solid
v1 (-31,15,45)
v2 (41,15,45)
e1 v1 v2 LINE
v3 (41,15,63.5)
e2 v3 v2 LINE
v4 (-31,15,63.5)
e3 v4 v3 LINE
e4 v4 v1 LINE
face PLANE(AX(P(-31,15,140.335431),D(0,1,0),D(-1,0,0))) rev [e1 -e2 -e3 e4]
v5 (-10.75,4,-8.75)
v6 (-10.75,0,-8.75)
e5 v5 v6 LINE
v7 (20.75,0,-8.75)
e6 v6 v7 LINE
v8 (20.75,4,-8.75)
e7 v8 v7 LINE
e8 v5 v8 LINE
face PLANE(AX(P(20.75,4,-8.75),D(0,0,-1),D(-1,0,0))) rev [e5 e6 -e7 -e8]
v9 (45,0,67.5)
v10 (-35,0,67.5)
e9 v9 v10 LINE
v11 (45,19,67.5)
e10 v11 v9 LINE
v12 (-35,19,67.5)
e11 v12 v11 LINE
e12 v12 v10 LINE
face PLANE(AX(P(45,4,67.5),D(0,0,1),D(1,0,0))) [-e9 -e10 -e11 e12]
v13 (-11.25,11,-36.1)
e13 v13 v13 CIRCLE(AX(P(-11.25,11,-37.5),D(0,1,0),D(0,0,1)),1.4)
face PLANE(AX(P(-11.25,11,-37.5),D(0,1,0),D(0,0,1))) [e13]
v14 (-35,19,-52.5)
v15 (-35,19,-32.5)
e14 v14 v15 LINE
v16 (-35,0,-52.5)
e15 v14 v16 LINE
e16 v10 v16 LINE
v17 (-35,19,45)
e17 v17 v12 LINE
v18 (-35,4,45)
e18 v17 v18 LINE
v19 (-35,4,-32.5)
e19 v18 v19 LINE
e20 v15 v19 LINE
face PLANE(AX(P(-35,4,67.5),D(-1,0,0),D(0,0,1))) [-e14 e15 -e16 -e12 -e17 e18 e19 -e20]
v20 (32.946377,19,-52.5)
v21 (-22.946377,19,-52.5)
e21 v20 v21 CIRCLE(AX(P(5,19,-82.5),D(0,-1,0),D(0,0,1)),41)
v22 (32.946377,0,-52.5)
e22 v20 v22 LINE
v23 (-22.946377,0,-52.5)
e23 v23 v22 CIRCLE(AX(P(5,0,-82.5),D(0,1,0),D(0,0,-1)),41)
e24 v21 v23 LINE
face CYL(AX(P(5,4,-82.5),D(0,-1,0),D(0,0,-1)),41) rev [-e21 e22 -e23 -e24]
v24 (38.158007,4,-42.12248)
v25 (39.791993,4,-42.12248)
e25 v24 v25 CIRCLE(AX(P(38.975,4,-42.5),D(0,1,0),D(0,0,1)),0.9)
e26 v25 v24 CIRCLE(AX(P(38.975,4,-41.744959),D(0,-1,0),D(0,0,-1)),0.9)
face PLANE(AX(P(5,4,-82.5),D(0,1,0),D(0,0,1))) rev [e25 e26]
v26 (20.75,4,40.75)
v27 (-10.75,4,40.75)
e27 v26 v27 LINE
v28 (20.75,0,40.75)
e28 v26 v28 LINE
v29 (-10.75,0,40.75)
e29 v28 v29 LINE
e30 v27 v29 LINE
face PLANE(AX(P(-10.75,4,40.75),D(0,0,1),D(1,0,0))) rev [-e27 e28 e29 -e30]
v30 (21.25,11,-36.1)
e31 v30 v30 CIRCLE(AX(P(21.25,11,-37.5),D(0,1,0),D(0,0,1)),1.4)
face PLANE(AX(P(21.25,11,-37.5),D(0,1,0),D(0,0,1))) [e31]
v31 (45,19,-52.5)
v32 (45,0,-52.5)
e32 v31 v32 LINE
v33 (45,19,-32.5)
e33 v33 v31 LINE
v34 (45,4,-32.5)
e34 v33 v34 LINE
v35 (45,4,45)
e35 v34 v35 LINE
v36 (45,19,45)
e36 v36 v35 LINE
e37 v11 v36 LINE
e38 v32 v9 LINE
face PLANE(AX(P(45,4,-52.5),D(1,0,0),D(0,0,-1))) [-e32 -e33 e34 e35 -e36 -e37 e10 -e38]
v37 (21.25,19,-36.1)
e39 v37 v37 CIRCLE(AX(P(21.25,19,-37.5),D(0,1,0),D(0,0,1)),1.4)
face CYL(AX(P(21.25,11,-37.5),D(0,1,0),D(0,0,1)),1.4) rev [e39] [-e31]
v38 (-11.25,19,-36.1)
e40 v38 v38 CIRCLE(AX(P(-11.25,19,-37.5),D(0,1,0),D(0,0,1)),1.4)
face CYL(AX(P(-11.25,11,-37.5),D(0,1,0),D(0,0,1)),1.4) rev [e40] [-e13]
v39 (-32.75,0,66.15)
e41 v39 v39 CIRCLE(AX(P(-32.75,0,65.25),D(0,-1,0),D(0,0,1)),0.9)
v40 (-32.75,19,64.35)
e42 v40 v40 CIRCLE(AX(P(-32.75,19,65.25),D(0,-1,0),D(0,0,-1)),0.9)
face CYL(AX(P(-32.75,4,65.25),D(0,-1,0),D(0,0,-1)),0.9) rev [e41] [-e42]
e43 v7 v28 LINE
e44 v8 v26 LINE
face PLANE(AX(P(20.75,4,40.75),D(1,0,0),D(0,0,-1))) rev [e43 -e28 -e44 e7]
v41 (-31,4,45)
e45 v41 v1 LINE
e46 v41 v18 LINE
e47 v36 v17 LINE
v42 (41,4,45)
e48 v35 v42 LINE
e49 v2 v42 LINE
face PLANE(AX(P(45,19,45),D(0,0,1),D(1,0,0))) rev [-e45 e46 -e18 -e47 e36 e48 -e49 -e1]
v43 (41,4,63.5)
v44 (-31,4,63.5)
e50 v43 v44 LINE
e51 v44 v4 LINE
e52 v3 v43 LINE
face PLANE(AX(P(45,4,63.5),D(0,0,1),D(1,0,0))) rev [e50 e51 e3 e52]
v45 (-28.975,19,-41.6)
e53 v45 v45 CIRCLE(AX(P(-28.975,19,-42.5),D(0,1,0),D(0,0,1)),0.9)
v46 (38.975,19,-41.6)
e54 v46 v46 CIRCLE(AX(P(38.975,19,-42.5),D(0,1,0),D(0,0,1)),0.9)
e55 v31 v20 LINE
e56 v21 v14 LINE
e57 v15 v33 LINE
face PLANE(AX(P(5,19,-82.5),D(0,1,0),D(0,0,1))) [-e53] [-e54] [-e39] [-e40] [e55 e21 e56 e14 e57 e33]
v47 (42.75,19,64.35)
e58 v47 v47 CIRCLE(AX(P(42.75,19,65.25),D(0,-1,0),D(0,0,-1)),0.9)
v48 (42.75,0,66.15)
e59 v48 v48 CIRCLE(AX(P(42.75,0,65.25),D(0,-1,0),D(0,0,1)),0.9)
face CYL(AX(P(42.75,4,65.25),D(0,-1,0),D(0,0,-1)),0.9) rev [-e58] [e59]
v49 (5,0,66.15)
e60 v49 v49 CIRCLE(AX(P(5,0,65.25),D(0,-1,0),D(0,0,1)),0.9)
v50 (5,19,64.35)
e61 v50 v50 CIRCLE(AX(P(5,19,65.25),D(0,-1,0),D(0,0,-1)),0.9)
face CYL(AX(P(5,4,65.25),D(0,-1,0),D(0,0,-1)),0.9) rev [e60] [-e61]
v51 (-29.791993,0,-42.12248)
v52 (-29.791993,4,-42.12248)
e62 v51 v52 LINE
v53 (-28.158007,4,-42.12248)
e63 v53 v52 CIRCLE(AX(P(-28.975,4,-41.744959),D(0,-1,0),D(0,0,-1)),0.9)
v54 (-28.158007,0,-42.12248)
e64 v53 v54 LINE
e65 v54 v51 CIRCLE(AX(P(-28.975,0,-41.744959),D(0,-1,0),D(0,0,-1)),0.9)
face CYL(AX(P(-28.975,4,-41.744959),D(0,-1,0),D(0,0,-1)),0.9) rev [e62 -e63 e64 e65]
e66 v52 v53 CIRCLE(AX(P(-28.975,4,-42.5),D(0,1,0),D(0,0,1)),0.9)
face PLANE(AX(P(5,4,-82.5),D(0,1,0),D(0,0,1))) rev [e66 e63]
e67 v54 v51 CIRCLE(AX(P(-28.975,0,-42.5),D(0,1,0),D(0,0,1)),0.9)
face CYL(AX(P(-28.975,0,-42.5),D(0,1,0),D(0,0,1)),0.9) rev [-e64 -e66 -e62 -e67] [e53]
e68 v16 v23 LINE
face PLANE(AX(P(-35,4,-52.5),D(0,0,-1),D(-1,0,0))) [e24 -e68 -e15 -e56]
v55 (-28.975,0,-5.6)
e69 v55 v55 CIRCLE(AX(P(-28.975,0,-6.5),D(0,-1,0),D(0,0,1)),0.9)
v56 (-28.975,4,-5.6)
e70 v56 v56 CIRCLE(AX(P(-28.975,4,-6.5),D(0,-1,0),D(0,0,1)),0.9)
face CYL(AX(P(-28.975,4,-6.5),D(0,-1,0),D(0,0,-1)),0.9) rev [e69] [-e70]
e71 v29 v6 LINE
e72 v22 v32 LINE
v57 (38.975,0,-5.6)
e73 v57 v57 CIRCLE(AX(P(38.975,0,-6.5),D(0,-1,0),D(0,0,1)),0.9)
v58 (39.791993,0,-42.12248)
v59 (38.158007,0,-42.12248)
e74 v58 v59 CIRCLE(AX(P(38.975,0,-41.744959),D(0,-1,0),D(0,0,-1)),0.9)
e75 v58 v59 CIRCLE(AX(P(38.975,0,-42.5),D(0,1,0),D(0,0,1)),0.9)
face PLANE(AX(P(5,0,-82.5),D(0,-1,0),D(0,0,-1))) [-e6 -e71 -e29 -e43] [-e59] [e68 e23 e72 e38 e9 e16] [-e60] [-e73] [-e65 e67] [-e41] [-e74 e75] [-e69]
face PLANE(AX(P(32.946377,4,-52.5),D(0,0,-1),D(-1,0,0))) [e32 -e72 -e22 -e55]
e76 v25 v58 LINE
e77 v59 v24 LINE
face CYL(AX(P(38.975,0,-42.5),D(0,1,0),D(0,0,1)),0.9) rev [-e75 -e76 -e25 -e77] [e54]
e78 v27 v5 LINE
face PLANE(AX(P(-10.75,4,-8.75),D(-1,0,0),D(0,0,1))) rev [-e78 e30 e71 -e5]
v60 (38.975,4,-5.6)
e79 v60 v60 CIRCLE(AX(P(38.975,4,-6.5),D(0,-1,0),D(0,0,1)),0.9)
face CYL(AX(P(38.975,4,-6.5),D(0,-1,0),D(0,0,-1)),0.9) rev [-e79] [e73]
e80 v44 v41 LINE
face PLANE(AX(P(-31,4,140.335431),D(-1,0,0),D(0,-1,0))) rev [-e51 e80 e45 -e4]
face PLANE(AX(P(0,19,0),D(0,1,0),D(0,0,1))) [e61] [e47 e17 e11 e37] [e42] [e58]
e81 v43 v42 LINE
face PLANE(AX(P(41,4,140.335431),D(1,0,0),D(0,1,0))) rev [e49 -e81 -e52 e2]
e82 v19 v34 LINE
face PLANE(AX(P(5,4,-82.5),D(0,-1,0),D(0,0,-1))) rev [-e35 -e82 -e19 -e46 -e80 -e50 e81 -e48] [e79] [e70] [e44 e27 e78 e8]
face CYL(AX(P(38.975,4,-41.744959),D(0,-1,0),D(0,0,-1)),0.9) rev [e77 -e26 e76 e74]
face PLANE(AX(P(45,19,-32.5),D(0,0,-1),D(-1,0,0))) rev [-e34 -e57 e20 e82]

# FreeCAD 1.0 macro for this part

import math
import FreeCAD as App
import Part
import Sketcher

doc = App.newDocument("Part")
body = doc.addObject("PartDesign::Body", "Body")

sketch1 = body.newObject("Sketcher::SketchObject", "Sketch")
sketch1.AttachmentSupport = (doc.getObject("XZ_Plane"), [""])
sketch1.MapMode = "FlatFace"
sketch1.addGeometry([
    Part.LineSegment(App.Vector(45, -52.5, 0), App.Vector(45, 67.5, 0)),
    Part.LineSegment(App.Vector(45, 67.5, 0), App.Vector(-35, 67.5, 0)),
    Part.LineSegment(App.Vector(-35, 67.5, 0), App.Vector(-35, -52.5, 0)),
    Part.LineSegment(App.Vector(-35, -52.5, 0), App.Vector(-22.946377, -52.5, 0)),
    Part.ArcOfCircle(Part.Circle(App.Vector(5, -82.5, 0), App.Vector(0, 0, 1), 41), math.radians(47.029716), math.radians(132.970284)),
    Part.LineSegment(App.Vector(32.946377, -52.5, 0), App.Vector(45, -52.5, 0)),
    Part.Circle(App.Vector(-28.975, -41.744959, 0), App.Vector(0, 0, 1), 0.9),
    Part.Circle(App.Vector(-28.975, -6.5, 0), App.Vector(0, 0, 1), 0.9),
    Part.Circle(App.Vector(38.975, -41.744959, 0), App.Vector(0, 0, 1), 0.9),
    Part.Circle(App.Vector(38.975, -6.5, 0), App.Vector(0, 0, 1), 0.9),
    Part.Circle(App.Vector(-32.75, 65.25, 0), App.Vector(0, 0, 1), 0.9),
    Part.LineSegment(App.Vector(20.75, -8.75, 0), App.Vector(-10.75, -8.75, 0)),
    Part.LineSegment(App.Vector(-10.75, -8.75, 0), App.Vector(-10.75, 40.75, 0)),
    Part.LineSegment(App.Vector(-10.75, 40.75, 0), App.Vector(20.75, 40.75, 0)),
    Part.LineSegment(App.Vector(20.75, 40.75, 0), App.Vector(20.75, -8.75, 0)),
    Part.Circle(App.Vector(5, 65.25, 0), App.Vector(0, 0, 1), 0.9),
    Part.Circle(App.Vector(42.75, 65.25, 0), App.Vector(0, 0, 1), 0.9),
], False)
sketch1.addConstraint([
    Sketcher.Constraint("Coincident", 0, 2, 1, 1),
    Sketcher.Constraint("Coincident", 1, 2, 2, 1),
    Sketcher.Constraint("Coincident", 2, 2, 3, 1),
    Sketcher.Constraint("Coincident", 3, 2, 4, 2),
    Sketcher.Constraint("Coincident", 4, 1, 5, 1),
    Sketcher.Constraint("Coincident", 5, 2, 0, 1),
    Sketcher.Constraint("Coincident", 11, 2, 12, 1),
    Sketcher.Constraint("Coincident", 12, 2, 13, 1),
    Sketcher.Constraint("Coincident", 13, 2, 14, 1),
    Sketcher.Constraint("Coincident", 14, 2, 11, 1),
    Sketcher.Constraint("Vertical", 0),
    Sketcher.Constraint("Horizontal", 1),
    Sketcher.Constraint("Vertical", 2),
    Sketcher.Constraint("Horizontal", 3),
    Sketcher.Constraint("Horizontal", 5),
    Sketcher.Constraint("Horizontal", 11),
    Sketcher.Constraint("Vertical", 12),
    Sketcher.Constraint("Horizontal", 13),
    Sketcher.Constraint("Vertical", 14),
    Sketcher.Constraint("Equal", 6, 7),
    Sketcher.Constraint("Equal", 7, 8),
    Sketcher.Constraint("Equal", 8, 9),
    Sketcher.Constraint("Equal", 9, 10),
    Sketcher.Constraint("Equal", 10, 15),
    Sketcher.Constraint("Equal", 15, 16),
    Sketcher.Constraint("Horizontal", 6, 3, 8, 3),
    Sketcher.Constraint("Horizontal", 7, 3, 9, 3),
    Sketcher.Constraint("Horizontal", 10, 3, 15, 3),
    Sketcher.Constraint("Horizontal", 15, 3, 16, 3),
    Sketcher.Constraint("Horizontal", 3, 2, 4, 1),
    Sketcher.Constraint("Vertical", 6, 3, 7, 3),
    Sketcher.Constraint("Vertical", 8, 3, 9, 3),
    Sketcher.Constraint("Vertical", 4, 3, 15, 3),
    Sketcher.Constraint("Equal", 3, 5),
    Sketcher.Constraint("Radius", 4, 41.0),
    Sketcher.Constraint("Diameter", 6, 1.8),
    Sketcher.Constraint("DistanceX", 1, 2, 1, 1, 80.0),
    Sketcher.Constraint("DistanceY", 0, 1, 0, 2, 120.0),
    Sketcher.Constraint("DistanceX", 11, 2, 11, 1, 31.5),
    Sketcher.Constraint("DistanceY", 12, 1, 12, 2, 49.5),
    Sketcher.Constraint("DistanceX", -1, 1, 4, 3, 5.0),
    Sketcher.Constraint("DistanceY", 4, 3, 7, 3, 76.0),
    Sketcher.Constraint("DistanceY", 9, 3, 0, 2, 74.0),
    Sketcher.Constraint("DistanceX", 10, 3, 12, 2, 22.0),
    Sketcher.Constraint("DistanceX", 13, 2, 16, 3, 22.0),
    Sketcher.Constraint("DistanceY", 4, 3, -1, 1, 82.5),
    Sketcher.Constraint("DistanceY", 12, 2, 15, 3, 24.5),
    Sketcher.Constraint("DistanceX", 10, 3, -1, 1, 32.75),
    Sketcher.Constraint("DistanceY", -1, 1, 10, 3, 65.25),
    Sketcher.Constraint("DistanceX", 6, 3, 8, 3, 67.95),
    Sketcher.Constraint("DistanceX", 6, 3, -1, 1, 28.975),
    Sketcher.Constraint("DistanceY", 6, 3, -1, 1, 41.744959),
])
pad1 = body.newObject("PartDesign::Pad", "Pad")
pad1.Profile = sketch1
pad1.Length = 4
pad1.Reversed = True

sketch2 = body.newObject("Sketcher::SketchObject", "Sketch001")
sketch2.AttachmentSupport = (doc.getObject("XZ_Plane"), [""])
sketch2.MapMode = "FlatFace"
sketch2.AttachmentOffset = App.Placement(App.Vector(0, 0, -4), App.Rotation())
sketch2.addGeometry([
    Part.LineSegment(App.Vector(-35, 45, 0), App.Vector(-35, 67.5, 0)),
    Part.LineSegment(App.Vector(-35, 67.5, 0), App.Vector(45, 67.5, 0)),
    Part.LineSegment(App.Vector(45, 67.5, 0), App.Vector(45, 45, 0)),
    Part.LineSegment(App.Vector(45, 45, 0), App.Vector(-35, 45, 0)),
    Part.LineSegment(App.Vector(-35, -32.5, 0), App.Vector(45, -32.5, 0)),
    Part.LineSegment(App.Vector(45, -32.5, 0), App.Vector(45, -52.5, 0)),
    Part.LineSegment(App.Vector(45, -52.5, 0), App.Vector(32.946377, -52.5, 0)),
    Part.ArcOfCircle(Part.Circle(App.Vector(5, -82.5, 0), App.Vector(0, 0, 1), 41), math.radians(47.029716), math.radians(132.970284)),
    Part.LineSegment(App.Vector(-22.946377, -52.5, 0), App.Vector(-35, -52.5, 0)),
    Part.LineSegment(App.Vector(-35, -52.5, 0), App.Vector(-35, -32.5, 0)),
], False)
sketch2.addConstraint([
    Sketcher.Constraint("Coincident", 0, 2, 1, 1),
    Sketcher.Constraint("Coincident", 1, 2, 2, 1),
    Sketcher.Constraint("Coincident", 2, 2, 3, 1),
    Sketcher.Constraint("Coincident", 3, 2, 0, 1),
    Sketcher.Constraint("Coincident", 4, 2, 5, 1),
    Sketcher.Constraint("Coincident", 5, 2, 6, 1),
    Sketcher.Constraint("Coincident", 6, 2, 7, 1),
    Sketcher.Constraint("Coincident", 7, 2, 8, 1),
    Sketcher.Constraint("Coincident", 8, 2, 9, 1),
    Sketcher.Constraint("Coincident", 9, 2, 4, 1),
    Sketcher.Constraint("Vertical", 0),
    Sketcher.Constraint("Horizontal", 1),
    Sketcher.Constraint("Vertical", 2),
    Sketcher.Constraint("Horizontal", 3),
    Sketcher.Constraint("Horizontal", 4),
    Sketcher.Constraint("Vertical", 5),
    Sketcher.Constraint("Horizontal", 6),
    Sketcher.Constraint("Horizontal", 8),
    Sketcher.Constraint("Vertical", 9),
    Sketcher.Constraint("Horizontal", 6, 2, 7, 2),
    Sketcher.Constraint("Vertical", 2, 2, 4, 2),
    Sketcher.Constraint("Vertical", 3, 2, 8, 2),
    Sketcher.Constraint("Equal", 6, 8),
    Sketcher.Constraint("Radius", 7, 41.0),
    Sketcher.Constraint("DistanceX", 1, 1, 1, 2, 80.0),
    Sketcher.Constraint("DistanceY", 5, 2, 5, 1, 20.0),
    Sketcher.Constraint("DistanceY", 0, 1, 0, 2, 22.5),
    Sketcher.Constraint("DistanceX", -1, 1, 7, 3, 5.0),
    Sketcher.Constraint("DistanceY", -1, 1, 2, 2, 45.0),
    Sketcher.Constraint("DistanceY", 7, 3, 0, 2, 150.0),
    Sketcher.Constraint("DistanceY", 7, 3, 4, 2, 50.0),
])
pad2 = body.newObject("PartDesign::Pad", "Pad001")
pad2.Profile = sketch2
pad2.Length = 15
pad2.Reversed = True

sketch3 = body.newObject("Sketcher::SketchObject", "Sketch002")
sketch3.AttachmentSupport = (doc.getObject("XZ_Plane"), [""])
sketch3.MapMode = "FlatFace"
sketch3.AttachmentOffset = App.Placement(App.Vector(0, 0, -19), App.Rotation())
sketch3.addGeometry([
    Part.Circle(App.Vector(38.975, -42.5, 0), App.Vector(0, 0, 1), 0.9),
    Part.Circle(App.Vector(-28.975, -42.5, 0), App.Vector(0, 0, 1), 0.9),
], False)
sketch3.addConstraint([
    Sketcher.Constraint("Equal", 0, 1),
    Sketcher.Constraint("Horizontal", 0, 3, 1, 3),
    Sketcher.Constraint("Diameter", 0, 1.8),
    Sketcher.Constraint("DistanceY", 0, 3, -1, 1, 42.5),
    Sketcher.Constraint("DistanceX", 1, 3, 0, 3, 67.95),
    Sketcher.Constraint("DistanceX", -1, 1, 0, 3, 38.975),
])
pocket1 = body.newObject("PartDesign::Pocket", "Pocket")
pocket1.Profile = sketch3
pocket1.Type = "ThroughAll"
pocket1.Reversed = True

sketch4 = body.newObject("Sketcher::SketchObject", "Sketch003")
sketch4.AttachmentSupport = (doc.getObject("XZ_Plane"), [""])
sketch4.MapMode = "FlatFace"
sketch4.addGeometry([
    Part.Circle(App.Vector(42.75, 65.25, 0), App.Vector(0, 0, 1), 0.9),
    Part.Circle(App.Vector(5, 65.25, 0), App.Vector(0, 0, 1), 0.9),
    Part.Circle(App.Vector(-32.75, 65.25, 0), App.Vector(0, 0, 1), 0.9),
], False)
sketch4.addConstraint([
    Sketcher.Constraint("Equal", 0, 1),
    Sketcher.Constraint("Equal", 1, 2),
    Sketcher.Constraint("Horizontal", 0, 3, 1, 3),
    Sketcher.Constraint("Horizontal", 1, 3, 2, 3),
    Sketcher.Constraint("Diameter", 0, 1.8),
    Sketcher.Constraint("DistanceX", -1, 1, 1, 3, 5.0),
    Sketcher.Constraint("DistanceX", 2, 3, 0, 3, 75.5),
    Sketcher.Constraint("DistanceX", -1, 1, 0, 3, 42.75),
    Sketcher.Constraint("DistanceY", -1, 1, 0, 3, 65.25),
])
pocket2 = body.newObject("PartDesign::Pocket", "Pocket001")
pocket2.Profile = sketch4
pocket2.Type = "ThroughAll"

sketch5 = body.newObject("Sketcher::SketchObject", "Sketch004")
sketch5.AttachmentSupport = (doc.getObject("XY_Plane"), [""])
sketch5.MapMode = "FlatFace"
sketch5.AttachmentOffset = App.Placement(App.Vector(0, 0, 45), App.Rotation())
sketch5.addGeometry([
    Part.LineSegment(App.Vector(41, 15, 0), App.Vector(41, 4, 0)),
    Part.LineSegment(App.Vector(41, 4, 0), App.Vector(-31, 4, 0)),
    Part.LineSegment(App.Vector(-31, 4, 0), App.Vector(-31, 15, 0)),
    Part.LineSegment(App.Vector(-31, 15, 0), App.Vector(41, 15, 0)),
], False)
sketch5.addConstraint([
    Sketcher.Constraint("Coincident", 0, 2, 1, 1),
    Sketcher.Constraint("Coincident", 1, 2, 2, 1),
    Sketcher.Constraint("Coincident", 2, 2, 3, 1),
    Sketcher.Constraint("Coincident", 3, 2, 0, 1),
    Sketcher.Constraint("Vertical", 0),
    Sketcher.Constraint("Horizontal", 1),
    Sketcher.Constraint("Vertical", 2),
    Sketcher.Constraint("Horizontal", 3),
    Sketcher.Constraint("DistanceX", 1, 2, 1, 1, 72.0),
    Sketcher.Constraint("DistanceY", 0, 2, 0, 1, 11.0),
    Sketcher.Constraint("DistanceX", -1, 1, 0, 2, 41.0),
    Sketcher.Constraint("DistanceY", -1, 1, 0, 2, 4.0),
])
pocket3 = body.newObject("PartDesign::Pocket", "Pocket002")
pocket3.Profile = sketch5
pocket3.Length = 18.5
pocket3.Reversed = True

sketch6 = body.newObject("Sketcher::SketchObject", "Sketch005")
sketch6.AttachmentSupport = (doc.getObject("XZ_Plane"), [""])
sketch6.MapMode = "FlatFace"
sketch6.AttachmentOffset = App.Placement(App.Vector(0, 0, -19), App.Rotation())
sketch6.addGeometry([
    Part.Circle(App.Vector(21.25, -37.5, 0), App.Vector(0, 0, 1), 1.4),
    Part.Circle(App.Vector(-11.25, -37.5, 0), App.Vector(0, 0, 1), 1.4),
], False)
sketch6.addConstraint([
    Sketcher.Constraint("Equal", 0, 1),
    Sketcher.Constraint("Horizontal", 0, 3, 1, 3),
    Sketcher.Constraint("Diameter", 0, 2.8),
    Sketcher.Constraint("DistanceY", 0, 3, -1, 1, 37.5),
    Sketcher.Constraint("DistanceX", 1, 3, 0, 3, 32.5),
    Sketcher.Constraint("DistanceX", -1, 1, 0, 3, 21.25),
])
pocket4 = body.newObject("PartDesign::Pocket", "Pocket003")
pocket4.Profile = sketch6
pocket4.Length = 8
pocket4.Reversed = True

doc.recompute()
